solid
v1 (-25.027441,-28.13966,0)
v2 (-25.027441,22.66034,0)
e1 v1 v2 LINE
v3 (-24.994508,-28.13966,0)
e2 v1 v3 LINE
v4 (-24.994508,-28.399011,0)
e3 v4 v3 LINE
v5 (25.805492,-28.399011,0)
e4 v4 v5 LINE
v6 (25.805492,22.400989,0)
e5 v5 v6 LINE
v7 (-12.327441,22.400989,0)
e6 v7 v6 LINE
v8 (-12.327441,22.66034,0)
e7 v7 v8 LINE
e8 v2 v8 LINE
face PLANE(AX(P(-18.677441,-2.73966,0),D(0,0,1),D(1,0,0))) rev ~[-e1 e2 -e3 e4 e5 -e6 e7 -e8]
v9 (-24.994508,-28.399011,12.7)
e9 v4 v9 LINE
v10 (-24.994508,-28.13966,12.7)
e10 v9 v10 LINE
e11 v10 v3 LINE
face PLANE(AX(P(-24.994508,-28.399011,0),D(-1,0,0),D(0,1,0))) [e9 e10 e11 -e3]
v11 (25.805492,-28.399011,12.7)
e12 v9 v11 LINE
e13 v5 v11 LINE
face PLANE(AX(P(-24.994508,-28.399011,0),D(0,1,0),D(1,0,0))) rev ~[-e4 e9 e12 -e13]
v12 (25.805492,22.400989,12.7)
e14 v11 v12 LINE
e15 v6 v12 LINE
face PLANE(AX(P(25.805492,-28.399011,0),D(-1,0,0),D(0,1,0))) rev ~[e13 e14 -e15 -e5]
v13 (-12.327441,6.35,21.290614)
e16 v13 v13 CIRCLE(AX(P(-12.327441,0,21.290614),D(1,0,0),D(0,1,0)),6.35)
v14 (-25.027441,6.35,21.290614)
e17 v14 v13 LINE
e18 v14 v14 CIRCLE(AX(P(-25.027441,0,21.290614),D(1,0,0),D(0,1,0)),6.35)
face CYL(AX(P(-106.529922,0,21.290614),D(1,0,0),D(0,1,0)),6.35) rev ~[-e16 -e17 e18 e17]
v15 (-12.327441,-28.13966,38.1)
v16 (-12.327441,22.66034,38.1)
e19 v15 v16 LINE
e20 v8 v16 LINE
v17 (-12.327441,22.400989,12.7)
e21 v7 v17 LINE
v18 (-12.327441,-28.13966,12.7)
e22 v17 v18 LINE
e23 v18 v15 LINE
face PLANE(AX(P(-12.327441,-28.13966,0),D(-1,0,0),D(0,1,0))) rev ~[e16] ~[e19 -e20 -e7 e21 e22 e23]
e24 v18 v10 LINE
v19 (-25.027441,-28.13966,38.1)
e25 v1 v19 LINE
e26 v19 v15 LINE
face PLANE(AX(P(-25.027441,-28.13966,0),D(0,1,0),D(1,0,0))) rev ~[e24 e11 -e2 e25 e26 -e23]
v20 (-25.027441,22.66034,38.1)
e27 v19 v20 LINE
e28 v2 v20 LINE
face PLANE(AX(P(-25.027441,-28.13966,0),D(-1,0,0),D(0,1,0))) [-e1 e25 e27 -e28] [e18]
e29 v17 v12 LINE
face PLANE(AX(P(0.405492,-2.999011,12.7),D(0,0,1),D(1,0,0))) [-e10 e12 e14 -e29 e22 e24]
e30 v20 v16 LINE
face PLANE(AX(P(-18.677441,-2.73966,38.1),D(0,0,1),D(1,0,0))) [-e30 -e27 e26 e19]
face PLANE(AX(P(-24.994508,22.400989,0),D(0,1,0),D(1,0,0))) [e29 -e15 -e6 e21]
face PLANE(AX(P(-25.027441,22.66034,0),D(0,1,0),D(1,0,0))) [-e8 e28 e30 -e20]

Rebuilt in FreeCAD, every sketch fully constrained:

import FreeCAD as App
import Part
import Sketcher
Q = App.Units.Quantity

doc = App.newDocument("Part")
body = doc.addObject("PartDesign::Body", "Body")

# Sketch on XY plane
sketch1 = body.newObject("Sketcher::SketchObject", "Sketch")
sketch1.AttachmentSupport = (doc.getObject("XY_Plane"), [""])
sketch1.MapMode = "FlatFace"
sketch1.addGeometry(Part.LineSegment(App.Vector(-25, 22, 0), App.Vector(-25, -28, 0)), False)
sketch1.addGeometry(Part.LineSegment(App.Vector(-25, -28, 0), App.Vector(26, -28, 0)), False)
sketch1.addGeometry(Part.LineSegment(App.Vector(26, -28, 0), App.Vector(26, 22, 0)), False)
sketch1.addGeometry(Part.LineSegment(App.Vector(26, 22, 0), App.Vector(-25, 22, 0)), False)
sketch1.addConstraint(Sketcher.Constraint("Coincident", 0, 2, 1, 1))
sketch1.addConstraint(Sketcher.Constraint("Coincident", 1, 2, 2, 1))
sketch1.addConstraint(Sketcher.Constraint("Coincident", 2, 2, 3, 1))
sketch1.addConstraint(Sketcher.Constraint("Coincident", 3, 2, 0, 1))
sketch1.addConstraint(Sketcher.Constraint("Vertical", 0))
sketch1.addConstraint(Sketcher.Constraint("Horizontal", 1))
sketch1.addConstraint(Sketcher.Constraint("Vertical", 2))
sketch1.addConstraint(Sketcher.Constraint("Horizontal", 3))
sketch1.addConstraint(Sketcher.Constraint("Equal", 3, 0))
sketch1.addConstraint(Sketcher.Constraint("DistanceX", 1, 1, 1, 2, Q("2 in")))
sketch1.addConstraint(Sketcher.Constraint("DistanceX", 0, 2, -1, 1, 24.994508))
sketch1.addConstraint(Sketcher.Constraint("DistanceY", 0, 2, -1, 1, 28.399011))
pad1 = body.newObject("PartDesign::Pad", "Pad")
pad1.Profile = sketch1
pad1.Length = Q("0.5 in")

# Sketch on XY plane
sketch2 = body.newObject("Sketcher::SketchObject", "Sketch001")
sketch2.AttachmentSupport = (doc.getObject("XY_Plane"), [""])
sketch2.MapMode = "FlatFace"
sketch2.addGeometry(Part.LineSegment(App.Vector(-25, 23, 0), App.Vector(-25, -28, 0)), False)
sketch2.addGeometry(Part.LineSegment(App.Vector(-25, -28, 0), App.Vector(-12, -28, 0)), False)
sketch2.addGeometry(Part.LineSegment(App.Vector(-12, -28, 0), App.Vector(-12, 23, 0)), False)
sketch2.addGeometry(Part.LineSegment(App.Vector(-12, 23, 0), App.Vector(-25, 23, 0)), False)
sketch2.addConstraint(Sketcher.Constraint("Coincident", 0, 2, 1, 1))
sketch2.addConstraint(Sketcher.Constraint("Coincident", 1, 2, 2, 1))
sketch2.addConstraint(Sketcher.Constraint("Coincident", 2, 2, 3, 1))
sketch2.addConstraint(Sketcher.Constraint("Coincident", 3, 2, 0, 1))
sketch2.addConstraint(Sketcher.Constraint("Vertical", 0))
sketch2.addConstraint(Sketcher.Constraint("Horizontal", 1))
sketch2.addConstraint(Sketcher.Constraint("Vertical", 2))
sketch2.addConstraint(Sketcher.Constraint("Horizontal", 3))
sketch2.addConstraint(Sketcher.Constraint("DistanceY", 0, 2, 0, 1, Q("2 in")))
sketch2.addConstraint(Sketcher.Constraint("DistanceX", 1, 1, 1, 2, Q("0.5 in")))
sketch2.addConstraint(Sketcher.Constraint("DistanceX", 0, 2, -1, 1, 25.027441))
sketch2.addConstraint(Sketcher.Constraint("DistanceY", 0, 2, -1, 1, 28.13966))
pad2 = body.newObject("PartDesign::Pad", "Pad001")
pad2.Profile = sketch2
pad2.Length = Q("1.5 in")

# Sketch on YZ plane
sketch3 = body.newObject("Sketcher::SketchObject", "Sketch002")
sketch3.AttachmentSupport = (doc.getObject("YZ_Plane"), [""])
sketch3.MapMode = "FlatFace"
sketch3.AttachmentOffset = App.Placement(App.Vector(0, 0, -25.027441), App.Rotation())
sketch3.addGeometry(Part.Circle(App.Vector(0, 21, 0), App.Vector(0, 0, 1), 6), False)
sketch3.addConstraint(Sketcher.Constraint("PointOnObject", 0, 3, -2))
sketch3.addConstraint(Sketcher.Constraint("Diameter", 0, Q("0.5 in")))
sketch3.addConstraint(Sketcher.Constraint("DistanceY", -1, 1, 0, 3, 21.290614))
doc.recompute()
hole = body.newObject("PartDesign::Hole", "Hole")
hole.Profile = sketch3
hole.ThreadType = "None"
hole.Diameter = Q("0.5 in")
hole.DepthType = "ThroughAll"
hole.Reversed = True

doc.recompute()
